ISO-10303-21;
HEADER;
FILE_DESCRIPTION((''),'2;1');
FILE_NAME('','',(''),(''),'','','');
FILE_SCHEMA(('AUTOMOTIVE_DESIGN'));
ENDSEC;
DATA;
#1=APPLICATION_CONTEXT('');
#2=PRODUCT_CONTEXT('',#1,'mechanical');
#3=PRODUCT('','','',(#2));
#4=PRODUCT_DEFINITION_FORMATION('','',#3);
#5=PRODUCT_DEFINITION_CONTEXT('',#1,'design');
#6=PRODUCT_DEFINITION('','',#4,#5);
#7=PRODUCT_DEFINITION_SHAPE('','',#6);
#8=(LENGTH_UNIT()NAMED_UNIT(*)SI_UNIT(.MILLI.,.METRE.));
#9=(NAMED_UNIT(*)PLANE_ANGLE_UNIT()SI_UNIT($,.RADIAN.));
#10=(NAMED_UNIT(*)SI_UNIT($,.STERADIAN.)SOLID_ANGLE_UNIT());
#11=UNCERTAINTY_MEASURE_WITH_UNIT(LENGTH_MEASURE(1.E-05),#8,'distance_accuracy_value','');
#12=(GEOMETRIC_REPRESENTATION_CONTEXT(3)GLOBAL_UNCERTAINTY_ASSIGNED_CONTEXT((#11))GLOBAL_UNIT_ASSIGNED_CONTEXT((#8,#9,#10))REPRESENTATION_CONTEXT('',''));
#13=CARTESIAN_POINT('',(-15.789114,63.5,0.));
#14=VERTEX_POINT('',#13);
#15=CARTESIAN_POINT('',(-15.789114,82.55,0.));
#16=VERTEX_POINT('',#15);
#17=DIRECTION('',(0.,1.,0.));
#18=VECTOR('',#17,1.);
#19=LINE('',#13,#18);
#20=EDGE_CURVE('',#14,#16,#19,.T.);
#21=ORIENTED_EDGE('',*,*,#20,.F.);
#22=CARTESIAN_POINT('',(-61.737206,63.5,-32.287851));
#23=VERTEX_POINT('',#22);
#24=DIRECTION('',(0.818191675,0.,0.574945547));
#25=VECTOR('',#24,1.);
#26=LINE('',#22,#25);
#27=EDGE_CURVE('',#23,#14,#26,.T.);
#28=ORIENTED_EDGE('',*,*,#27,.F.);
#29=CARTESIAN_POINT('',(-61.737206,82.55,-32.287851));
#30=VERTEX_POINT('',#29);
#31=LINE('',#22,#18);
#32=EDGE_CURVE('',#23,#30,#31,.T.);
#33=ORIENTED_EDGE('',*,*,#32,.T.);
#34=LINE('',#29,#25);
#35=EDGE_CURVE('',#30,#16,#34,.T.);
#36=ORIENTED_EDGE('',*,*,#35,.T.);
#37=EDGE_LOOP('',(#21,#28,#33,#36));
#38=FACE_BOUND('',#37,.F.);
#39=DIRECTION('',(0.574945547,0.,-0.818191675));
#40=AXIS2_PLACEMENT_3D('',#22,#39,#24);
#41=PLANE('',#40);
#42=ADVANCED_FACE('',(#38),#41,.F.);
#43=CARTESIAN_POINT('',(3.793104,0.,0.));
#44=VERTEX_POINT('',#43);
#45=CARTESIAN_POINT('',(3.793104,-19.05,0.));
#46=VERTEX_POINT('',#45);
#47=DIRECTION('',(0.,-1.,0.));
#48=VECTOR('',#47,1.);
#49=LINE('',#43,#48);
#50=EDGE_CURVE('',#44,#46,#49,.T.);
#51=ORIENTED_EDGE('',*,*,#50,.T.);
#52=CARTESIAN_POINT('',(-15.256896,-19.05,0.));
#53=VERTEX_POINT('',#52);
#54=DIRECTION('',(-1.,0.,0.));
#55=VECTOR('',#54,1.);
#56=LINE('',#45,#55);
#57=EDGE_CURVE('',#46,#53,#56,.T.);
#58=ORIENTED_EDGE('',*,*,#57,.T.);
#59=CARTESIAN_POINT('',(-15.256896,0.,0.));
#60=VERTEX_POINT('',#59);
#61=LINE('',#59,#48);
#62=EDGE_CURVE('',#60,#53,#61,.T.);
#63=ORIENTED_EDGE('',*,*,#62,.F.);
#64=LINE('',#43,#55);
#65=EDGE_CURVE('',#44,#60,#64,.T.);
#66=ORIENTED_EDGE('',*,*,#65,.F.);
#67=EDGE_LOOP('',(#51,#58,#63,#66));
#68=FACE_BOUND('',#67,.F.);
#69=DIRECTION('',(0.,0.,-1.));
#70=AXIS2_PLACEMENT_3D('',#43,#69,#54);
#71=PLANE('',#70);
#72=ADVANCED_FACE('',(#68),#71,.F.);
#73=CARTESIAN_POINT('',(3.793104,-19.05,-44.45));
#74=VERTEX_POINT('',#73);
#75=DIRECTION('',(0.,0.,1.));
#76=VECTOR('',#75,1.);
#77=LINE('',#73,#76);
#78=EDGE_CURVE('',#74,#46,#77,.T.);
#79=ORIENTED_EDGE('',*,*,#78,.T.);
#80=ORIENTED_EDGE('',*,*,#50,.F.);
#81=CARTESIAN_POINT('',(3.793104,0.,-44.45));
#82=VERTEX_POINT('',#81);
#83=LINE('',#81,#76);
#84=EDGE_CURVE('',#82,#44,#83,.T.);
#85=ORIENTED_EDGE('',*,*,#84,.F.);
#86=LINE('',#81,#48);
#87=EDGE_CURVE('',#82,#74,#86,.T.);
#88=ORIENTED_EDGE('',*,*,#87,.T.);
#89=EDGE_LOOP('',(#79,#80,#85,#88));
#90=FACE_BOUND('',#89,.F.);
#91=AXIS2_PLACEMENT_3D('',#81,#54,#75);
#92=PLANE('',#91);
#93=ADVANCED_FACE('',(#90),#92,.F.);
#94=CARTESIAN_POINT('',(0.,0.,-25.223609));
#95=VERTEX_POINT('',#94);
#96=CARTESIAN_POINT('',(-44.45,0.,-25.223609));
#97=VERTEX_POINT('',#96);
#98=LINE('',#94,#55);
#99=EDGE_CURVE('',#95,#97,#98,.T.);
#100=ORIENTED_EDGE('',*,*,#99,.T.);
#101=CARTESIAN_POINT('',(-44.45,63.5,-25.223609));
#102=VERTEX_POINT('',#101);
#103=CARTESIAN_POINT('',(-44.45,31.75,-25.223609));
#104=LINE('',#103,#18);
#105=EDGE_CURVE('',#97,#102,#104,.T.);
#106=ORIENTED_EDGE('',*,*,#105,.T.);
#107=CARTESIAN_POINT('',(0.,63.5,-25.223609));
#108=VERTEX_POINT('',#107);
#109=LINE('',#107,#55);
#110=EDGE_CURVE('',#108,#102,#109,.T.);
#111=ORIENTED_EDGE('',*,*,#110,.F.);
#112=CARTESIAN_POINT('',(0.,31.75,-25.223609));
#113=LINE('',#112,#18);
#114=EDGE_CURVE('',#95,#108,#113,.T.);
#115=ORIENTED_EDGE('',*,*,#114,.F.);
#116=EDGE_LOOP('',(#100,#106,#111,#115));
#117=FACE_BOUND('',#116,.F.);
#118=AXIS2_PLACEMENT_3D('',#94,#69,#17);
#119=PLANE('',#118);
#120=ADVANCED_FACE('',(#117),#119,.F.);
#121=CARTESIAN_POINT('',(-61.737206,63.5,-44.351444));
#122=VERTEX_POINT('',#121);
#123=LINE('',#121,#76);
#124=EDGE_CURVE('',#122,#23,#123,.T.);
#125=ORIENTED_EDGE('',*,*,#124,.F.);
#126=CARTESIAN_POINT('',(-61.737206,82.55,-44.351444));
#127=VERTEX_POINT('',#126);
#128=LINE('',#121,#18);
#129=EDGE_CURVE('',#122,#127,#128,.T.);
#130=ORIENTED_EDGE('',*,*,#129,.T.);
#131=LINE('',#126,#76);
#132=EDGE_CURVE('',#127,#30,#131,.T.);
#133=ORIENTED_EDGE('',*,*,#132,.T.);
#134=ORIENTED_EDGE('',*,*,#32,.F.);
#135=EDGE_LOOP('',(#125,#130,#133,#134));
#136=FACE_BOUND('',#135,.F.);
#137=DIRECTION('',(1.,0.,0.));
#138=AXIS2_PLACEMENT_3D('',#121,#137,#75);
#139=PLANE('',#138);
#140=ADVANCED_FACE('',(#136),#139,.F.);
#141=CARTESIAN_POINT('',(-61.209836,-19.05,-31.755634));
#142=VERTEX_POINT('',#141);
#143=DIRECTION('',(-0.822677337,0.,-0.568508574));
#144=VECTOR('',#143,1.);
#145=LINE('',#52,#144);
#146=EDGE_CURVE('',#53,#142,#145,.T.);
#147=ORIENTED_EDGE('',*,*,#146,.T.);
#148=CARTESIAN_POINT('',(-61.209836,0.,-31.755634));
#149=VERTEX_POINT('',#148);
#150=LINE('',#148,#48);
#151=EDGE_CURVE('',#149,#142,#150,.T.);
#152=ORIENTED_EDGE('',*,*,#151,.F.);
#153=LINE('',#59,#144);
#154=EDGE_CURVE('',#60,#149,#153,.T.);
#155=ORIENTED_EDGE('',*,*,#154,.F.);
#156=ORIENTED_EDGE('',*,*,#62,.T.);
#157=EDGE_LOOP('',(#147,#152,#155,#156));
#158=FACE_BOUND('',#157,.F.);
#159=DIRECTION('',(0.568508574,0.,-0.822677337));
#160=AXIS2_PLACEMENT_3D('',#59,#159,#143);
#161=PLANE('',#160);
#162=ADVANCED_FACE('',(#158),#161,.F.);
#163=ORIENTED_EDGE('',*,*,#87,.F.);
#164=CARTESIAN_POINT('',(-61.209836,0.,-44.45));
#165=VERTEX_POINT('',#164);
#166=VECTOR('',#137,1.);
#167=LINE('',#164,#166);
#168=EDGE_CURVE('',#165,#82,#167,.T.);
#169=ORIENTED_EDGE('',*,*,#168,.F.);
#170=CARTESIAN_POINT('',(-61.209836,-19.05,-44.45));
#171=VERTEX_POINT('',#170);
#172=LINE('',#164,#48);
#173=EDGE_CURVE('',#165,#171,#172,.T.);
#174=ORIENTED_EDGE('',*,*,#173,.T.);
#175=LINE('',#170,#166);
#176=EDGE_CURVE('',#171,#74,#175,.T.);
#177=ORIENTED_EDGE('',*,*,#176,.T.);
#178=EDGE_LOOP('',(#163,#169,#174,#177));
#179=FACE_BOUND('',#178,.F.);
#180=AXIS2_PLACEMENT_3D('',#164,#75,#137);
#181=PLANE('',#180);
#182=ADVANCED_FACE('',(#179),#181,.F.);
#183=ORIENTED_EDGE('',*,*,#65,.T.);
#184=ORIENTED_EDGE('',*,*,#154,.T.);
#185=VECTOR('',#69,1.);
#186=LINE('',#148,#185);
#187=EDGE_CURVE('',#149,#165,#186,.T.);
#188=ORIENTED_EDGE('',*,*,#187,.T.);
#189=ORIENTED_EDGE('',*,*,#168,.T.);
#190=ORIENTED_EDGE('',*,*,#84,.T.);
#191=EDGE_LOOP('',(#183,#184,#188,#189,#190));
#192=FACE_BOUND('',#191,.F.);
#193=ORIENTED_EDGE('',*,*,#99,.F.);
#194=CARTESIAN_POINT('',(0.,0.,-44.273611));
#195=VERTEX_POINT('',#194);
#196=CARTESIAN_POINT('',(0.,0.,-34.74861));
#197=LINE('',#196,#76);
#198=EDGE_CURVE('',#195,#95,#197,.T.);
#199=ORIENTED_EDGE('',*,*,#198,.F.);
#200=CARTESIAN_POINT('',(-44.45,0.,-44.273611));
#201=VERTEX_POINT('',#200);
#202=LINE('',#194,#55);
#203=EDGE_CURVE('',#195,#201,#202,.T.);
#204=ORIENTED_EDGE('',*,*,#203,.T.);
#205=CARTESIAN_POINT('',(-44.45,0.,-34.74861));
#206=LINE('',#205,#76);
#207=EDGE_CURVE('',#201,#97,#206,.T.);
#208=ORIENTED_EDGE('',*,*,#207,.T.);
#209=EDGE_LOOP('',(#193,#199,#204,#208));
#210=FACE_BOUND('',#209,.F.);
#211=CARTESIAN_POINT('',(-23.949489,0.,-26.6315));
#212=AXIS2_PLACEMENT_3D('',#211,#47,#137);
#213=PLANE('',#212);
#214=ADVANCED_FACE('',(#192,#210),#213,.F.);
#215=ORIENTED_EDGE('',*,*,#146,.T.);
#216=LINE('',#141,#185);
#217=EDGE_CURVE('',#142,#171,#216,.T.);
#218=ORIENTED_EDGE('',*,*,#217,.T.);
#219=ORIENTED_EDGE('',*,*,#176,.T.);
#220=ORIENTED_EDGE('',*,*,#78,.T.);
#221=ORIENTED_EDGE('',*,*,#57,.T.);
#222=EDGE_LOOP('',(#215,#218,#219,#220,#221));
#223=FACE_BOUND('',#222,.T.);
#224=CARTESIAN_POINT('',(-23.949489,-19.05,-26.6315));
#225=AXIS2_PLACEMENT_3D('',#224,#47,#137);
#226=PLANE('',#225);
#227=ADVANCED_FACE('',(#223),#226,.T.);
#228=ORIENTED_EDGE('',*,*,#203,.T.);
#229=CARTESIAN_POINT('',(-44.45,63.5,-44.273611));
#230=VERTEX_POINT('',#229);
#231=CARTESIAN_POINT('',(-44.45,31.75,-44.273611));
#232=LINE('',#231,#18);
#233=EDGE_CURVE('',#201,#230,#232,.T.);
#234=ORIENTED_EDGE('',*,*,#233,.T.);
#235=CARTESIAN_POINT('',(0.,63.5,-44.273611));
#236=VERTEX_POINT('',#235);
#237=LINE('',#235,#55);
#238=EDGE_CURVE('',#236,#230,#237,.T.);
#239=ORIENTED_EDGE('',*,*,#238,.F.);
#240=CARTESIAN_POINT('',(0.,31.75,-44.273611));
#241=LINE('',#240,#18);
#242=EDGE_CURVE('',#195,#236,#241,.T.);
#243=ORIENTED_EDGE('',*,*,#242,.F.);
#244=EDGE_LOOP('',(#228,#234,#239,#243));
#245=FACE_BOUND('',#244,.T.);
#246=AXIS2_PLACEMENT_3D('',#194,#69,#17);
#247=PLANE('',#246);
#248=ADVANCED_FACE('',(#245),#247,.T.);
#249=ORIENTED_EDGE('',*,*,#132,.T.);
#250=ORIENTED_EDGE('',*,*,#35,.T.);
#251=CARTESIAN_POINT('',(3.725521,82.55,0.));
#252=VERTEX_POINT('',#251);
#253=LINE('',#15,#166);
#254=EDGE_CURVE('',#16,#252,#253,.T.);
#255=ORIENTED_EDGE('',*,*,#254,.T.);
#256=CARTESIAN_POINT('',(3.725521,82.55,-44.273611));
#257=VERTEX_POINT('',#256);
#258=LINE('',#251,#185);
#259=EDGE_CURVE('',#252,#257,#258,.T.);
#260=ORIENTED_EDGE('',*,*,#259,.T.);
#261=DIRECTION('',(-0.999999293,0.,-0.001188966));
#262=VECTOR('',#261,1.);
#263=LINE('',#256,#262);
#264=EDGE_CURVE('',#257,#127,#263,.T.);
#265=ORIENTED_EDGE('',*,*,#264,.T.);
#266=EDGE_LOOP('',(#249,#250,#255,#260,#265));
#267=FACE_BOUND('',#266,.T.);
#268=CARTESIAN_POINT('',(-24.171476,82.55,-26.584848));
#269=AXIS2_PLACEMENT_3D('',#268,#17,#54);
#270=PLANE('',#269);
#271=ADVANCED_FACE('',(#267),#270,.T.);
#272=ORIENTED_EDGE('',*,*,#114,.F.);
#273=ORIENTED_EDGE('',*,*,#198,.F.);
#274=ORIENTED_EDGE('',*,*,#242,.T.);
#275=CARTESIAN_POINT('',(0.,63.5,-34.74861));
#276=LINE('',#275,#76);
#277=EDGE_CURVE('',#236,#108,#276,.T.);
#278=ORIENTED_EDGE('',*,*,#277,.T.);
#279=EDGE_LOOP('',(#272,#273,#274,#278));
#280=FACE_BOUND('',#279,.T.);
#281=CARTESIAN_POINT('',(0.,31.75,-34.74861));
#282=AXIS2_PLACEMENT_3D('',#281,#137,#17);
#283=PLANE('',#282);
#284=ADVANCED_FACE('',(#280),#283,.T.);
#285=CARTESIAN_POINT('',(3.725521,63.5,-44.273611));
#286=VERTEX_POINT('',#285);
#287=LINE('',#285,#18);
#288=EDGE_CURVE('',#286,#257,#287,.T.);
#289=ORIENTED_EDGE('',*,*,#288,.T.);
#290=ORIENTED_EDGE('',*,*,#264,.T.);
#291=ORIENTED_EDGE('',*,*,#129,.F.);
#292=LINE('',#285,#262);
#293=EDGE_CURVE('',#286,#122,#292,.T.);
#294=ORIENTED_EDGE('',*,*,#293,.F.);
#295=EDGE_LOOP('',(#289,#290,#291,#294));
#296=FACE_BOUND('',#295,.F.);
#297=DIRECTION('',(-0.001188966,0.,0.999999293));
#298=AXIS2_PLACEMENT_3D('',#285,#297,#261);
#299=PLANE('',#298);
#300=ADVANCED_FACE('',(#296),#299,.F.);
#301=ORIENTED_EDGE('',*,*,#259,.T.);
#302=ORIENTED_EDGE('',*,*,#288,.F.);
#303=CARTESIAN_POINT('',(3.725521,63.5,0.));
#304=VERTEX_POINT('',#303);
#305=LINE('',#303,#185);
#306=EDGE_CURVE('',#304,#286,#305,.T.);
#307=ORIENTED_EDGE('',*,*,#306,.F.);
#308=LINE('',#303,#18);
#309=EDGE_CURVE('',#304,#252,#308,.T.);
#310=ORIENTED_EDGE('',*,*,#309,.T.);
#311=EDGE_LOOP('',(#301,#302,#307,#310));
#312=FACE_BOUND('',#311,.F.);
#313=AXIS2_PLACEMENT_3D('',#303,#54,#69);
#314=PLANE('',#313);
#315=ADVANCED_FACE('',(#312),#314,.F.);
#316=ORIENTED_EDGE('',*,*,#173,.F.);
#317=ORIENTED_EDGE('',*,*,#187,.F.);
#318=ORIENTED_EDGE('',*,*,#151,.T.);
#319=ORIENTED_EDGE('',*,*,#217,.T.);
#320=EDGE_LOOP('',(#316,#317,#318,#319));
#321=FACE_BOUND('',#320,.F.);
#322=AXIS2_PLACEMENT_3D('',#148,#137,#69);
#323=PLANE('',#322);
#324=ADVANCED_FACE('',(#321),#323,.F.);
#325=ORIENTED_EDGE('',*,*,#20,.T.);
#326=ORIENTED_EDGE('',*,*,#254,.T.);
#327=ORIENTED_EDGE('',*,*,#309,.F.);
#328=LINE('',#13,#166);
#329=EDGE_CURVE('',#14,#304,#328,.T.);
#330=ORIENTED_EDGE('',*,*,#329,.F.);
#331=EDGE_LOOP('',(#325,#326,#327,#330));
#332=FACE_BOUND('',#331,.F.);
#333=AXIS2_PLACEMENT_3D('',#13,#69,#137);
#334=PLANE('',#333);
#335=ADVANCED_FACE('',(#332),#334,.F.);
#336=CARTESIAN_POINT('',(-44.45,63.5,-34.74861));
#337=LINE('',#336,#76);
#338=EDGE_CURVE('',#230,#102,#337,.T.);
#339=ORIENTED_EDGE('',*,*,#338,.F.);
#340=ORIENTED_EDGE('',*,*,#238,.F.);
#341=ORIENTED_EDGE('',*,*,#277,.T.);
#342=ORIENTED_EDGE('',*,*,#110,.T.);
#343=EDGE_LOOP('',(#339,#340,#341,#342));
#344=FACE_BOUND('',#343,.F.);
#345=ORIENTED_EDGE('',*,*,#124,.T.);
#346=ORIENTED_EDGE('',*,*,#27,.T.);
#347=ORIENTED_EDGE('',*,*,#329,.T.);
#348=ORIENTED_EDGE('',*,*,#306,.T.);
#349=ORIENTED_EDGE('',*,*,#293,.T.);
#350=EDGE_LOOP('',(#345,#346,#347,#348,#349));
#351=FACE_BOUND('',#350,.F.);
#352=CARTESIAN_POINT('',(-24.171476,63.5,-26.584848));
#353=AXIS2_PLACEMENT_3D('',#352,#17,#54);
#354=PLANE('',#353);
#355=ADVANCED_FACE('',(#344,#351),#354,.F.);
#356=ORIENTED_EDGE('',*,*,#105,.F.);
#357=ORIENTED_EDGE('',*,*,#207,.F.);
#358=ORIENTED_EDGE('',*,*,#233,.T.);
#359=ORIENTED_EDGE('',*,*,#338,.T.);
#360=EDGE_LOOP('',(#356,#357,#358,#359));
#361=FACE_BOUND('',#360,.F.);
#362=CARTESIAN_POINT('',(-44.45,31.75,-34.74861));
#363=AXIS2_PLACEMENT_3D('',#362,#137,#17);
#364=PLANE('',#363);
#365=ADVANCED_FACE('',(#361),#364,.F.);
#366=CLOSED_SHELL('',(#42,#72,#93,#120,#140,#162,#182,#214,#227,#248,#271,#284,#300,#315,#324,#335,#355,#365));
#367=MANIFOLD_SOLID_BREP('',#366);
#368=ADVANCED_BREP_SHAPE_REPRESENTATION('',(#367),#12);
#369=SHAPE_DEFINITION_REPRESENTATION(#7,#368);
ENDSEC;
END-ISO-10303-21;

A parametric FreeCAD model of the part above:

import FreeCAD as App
import Part
import Sketcher
Q = App.Units.Quantity

doc = App.newDocument("Part")
body = doc.addObject("PartDesign::Body", "Body")

# Sketch on XZ plane
sketch1 = doc.addObject("Sketcher::SketchObject", "Sketch")
body.addObject(sketch1)
sketch1.AttachmentSupport = (doc.XZ_Plane, [""])
sketch1.MapMode = "FlatFace"
sketch1.addGeometry([
    Part.LineSegment(App.Vector(-61, -32, 0), App.Vector(-61, -44, 0)),  # 0
    Part.LineSegment(App.Vector(-61, -44, 0), App.Vector(4, -44, 0)),  # 1
    Part.LineSegment(App.Vector(4, -44, 0), App.Vector(4, 0, 0)),  # 2
    Part.LineSegment(App.Vector(4, 0, 0), App.Vector(-15, 0, 0)),  # 3
    Part.LineSegment(App.Vector(-15, 0, 0), App.Vector(-61, -32, 0)),  # 4
], False)
sketch1.addConstraint([
    Sketcher.Constraint("Coincident", 0, 2, 1, 1),
    Sketcher.Constraint("Coincident", 1, 2, 2, 1),
    Sketcher.Constraint("Coincident", 2, 2, 3, 1),
    Sketcher.Constraint("Coincident", 3, 2, 4, 1),
    Sketcher.Constraint("Coincident", 4, 2, 0, 1),
    Sketcher.Constraint("Vertical", 0),
    Sketcher.Constraint("Horizontal", 1),
    Sketcher.Constraint("Vertical", 2),
    Sketcher.Constraint("Horizontal", 3),
    Sketcher.Constraint("PointOnObject", 2, 2, -1),
    Sketcher.Constraint("DistanceX", 3, 2, 3, 1, Q("0.75 in")),
    Sketcher.Constraint("DistanceY", 2, 1, 2, 2, Q("1.75 in")),
    Sketcher.Constraint("DistanceX", 1, 1, 1, 2, 65.00294),
    Sketcher.Constraint("DistanceY", 0, 2, 0, 1, 12.694366),
    Sketcher.Constraint("DistanceX", 0, 2, -1, 1, 61.209836),
])
pad1 = doc.addObject("PartDesign::Pad", "Pad")
body.addObject(pad1)
pad1.Profile = sketch1
pad1.Length = Q("0.75 in")

# Sketch on YZ plane
sketch2 = doc.addObject("Sketcher::SketchObject", "Sketch001")
body.addObject(sketch2)
sketch2.AttachmentSupport = (doc.YZ_Plane, [""])
sketch2.MapMode = "FlatFace"
sketch2.addGeometry([
    Part.LineSegment(App.Vector(0, -25, 0), App.Vector(0, -44, 0)),
    Part.LineSegment(App.Vector(0, -44, 0), App.Vector(64, -44, 0)),
    Part.LineSegment(App.Vector(64, -44, 0), App.Vector(64, -25, 0)),
    Part.LineSegment(App.Vector(64, -25, 0), App.Vector(0, -25, 0)),
], False)
sketch2.addConstraint([
    Sketcher.Constraint("Coincident", 0, 2, 1, 1),
    Sketcher.Constraint("Coincident", 1, 2, 2, 1),
    Sketcher.Constraint("Coincident", 2, 2, 3, 1),
    Sketcher.Constraint("Coincident", 3, 2, 0, 1),
    Sketcher.Constraint("Vertical", 0),
    Sketcher.Constraint("Horizontal", 1),
    Sketcher.Constraint("Vertical", 2),
    Sketcher.Constraint("Horizontal", 3),
    Sketcher.Constraint("PointOnObject", 0, 2, -2),
    Sketcher.Constraint("DistanceX", 1, 1, 1, 2, Q("2.5 in")),
    Sketcher.Constraint("DistanceY", 0, 2, 0, 1, Q("0.7500001 in")),
    Sketcher.Constraint("DistanceY", 0, 2, -1, 1, 44.273611),
])
pad2 = doc.addObject("PartDesign::Pad", "Pad001")
body.addObject(pad2)
pad2.Profile = sketch2
pad2.Length = Q("1.75 in")
pad2.Reversed = True

# Sketch on XZ plane
sketch3 = doc.addObject("Sketcher::SketchObject", "Sketch002")
body.addObject(sketch3)
sketch3.AttachmentSupport = (doc.XZ_Plane, [""])
sketch3.MapMode = "FlatFace"
sketch3.AttachmentOffset = App.Placement(App.Vector(0, 0, -2.5 * 25.4), App.Rotation())
sketch3.addGeometry([
    Part.LineSegment(App.Vector(4, 0, 0), App.Vector(4, -44, 0)),  # 0
    Part.LineSegment(App.Vector(4, -44, 0), App.Vector(-62, -44, 0)),  # 1
    Part.LineSegment(App.Vector(-62, -44, 0), App.Vector(-62, -32, 0)),  # 2
    Part.LineSegment(App.Vector(-62, -32, 0), App.Vector(-16, 0, 0)),  # 3
    Part.LineSegment(App.Vector(-16, 0, 0), App.Vector(4, 0, 0)),  # 4
], False)
sketch3.addConstraint([
    Sketcher.Constraint("Coincident", 0, 2, 1, 1),
    Sketcher.Constraint("Coincident", 1, 2, 2, 1),
    Sketcher.Constraint("Coincident", 2, 2, 3, 1),
    Sketcher.Constraint("Coincident", 3, 2, 4, 1),
    Sketcher.Constraint("Coincident", 4, 2, 0, 1),
    Sketcher.Constraint("Vertical", 0),
    Sketcher.Constraint("Vertical", 2),
    Sketcher.Constraint("Horizontal", 4),
    Sketcher.Constraint("PointOnObject", 3, 2, -1),
    Sketcher.Constraint("DistanceY", 0, 2, 0, 1, 44.273611),
    Sketcher.Constraint("DistanceX", 4, 1, 4, 2, 19.514635),
    Sketcher.Constraint("DistanceY", 2, 1, 2, 2, 12.063593),
    Sketcher.Constraint("DistanceX", -1, 1, 0, 2, 3.725521),
    Sketcher.Constraint("DistanceY", 2, 2, -1, 1, 32.287851),
    Sketcher.Constraint("Distance", 1, 65.462773),
])
pad3 = doc.addObject("PartDesign::Pad", "Pad002")
body.addObject(pad3)
pad3.Profile = sketch3
pad3.Length = Q("0.75 in")
pad3.Reversed = True

doc.recompute()
